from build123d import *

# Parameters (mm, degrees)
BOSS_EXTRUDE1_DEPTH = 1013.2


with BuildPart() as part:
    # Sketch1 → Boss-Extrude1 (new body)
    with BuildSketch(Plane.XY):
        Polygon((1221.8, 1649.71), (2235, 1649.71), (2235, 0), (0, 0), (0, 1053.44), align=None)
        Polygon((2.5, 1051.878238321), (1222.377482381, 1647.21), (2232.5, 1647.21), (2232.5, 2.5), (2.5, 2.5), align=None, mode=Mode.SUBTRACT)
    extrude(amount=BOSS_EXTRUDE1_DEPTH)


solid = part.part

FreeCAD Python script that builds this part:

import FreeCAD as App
import Part
import Sketcher

V = App.Vector
Q = App.Units.Quantity

doc = App.newDocument("Part")
body = doc.addObject("PartDesign::Body", "Body")

# Sketch on XY plane
sketch1 = body.newObject("Sketcher::SketchObject", "Sketch")
sketch1.AttachmentSupport = (doc.getObject("XY_Plane"), [""])
sketch1.MapMode = "FlatFace"
sketch1.addGeometry([
    Part.LineSegment(V(2235, 1650, 0), V(1222, 1650, 0)),  # 0
    Part.LineSegment(V(1222, 1650, 0), V(0, 1053, 0)),  # 1
    Part.LineSegment(V(0, 1053, 0), V(0, 0, 0)),  # 2
    Part.LineSegment(V(0, 0, 0), V(2235, 0, 0)),  # 3
    Part.LineSegment(V(2235, 0, 0), V(2235, 1650, 0)),  # 4
    Part.LineSegment(V(2, 1052, 0), V(1222, 1647, 0)),  # 5
    Part.LineSegment(V(1222, 1647, 0), V(2232, 1647, 0)),  # 6
    Part.LineSegment(V(2232, 1647, 0), V(2232, 2, 0)),  # 7
    Part.LineSegment(V(2232, 2, 0), V(2, 2, 0)),  # 8
    Part.LineSegment(V(2, 2, 0), V(2, 1052, 0)),  # 9
], False)
sketch1.addConstraint([
    Sketcher.Constraint("Coincident", 0, 2, 1, 1),
    Sketcher.Constraint("Coincident", 1, 2, 2, 1),
    Sketcher.Constraint("Coincident", 2, 2, 3, 1),
    Sketcher.Constraint("Coincident", 3, 2, 4, 1),
    Sketcher.Constraint("Coincident", 4, 2, 0, 1),
    Sketcher.Constraint("Coincident", 5, 2, 6, 1),
    Sketcher.Constraint("Coincident", 6, 2, 7, 1),
    Sketcher.Constraint("Coincident", 7, 2, 8, 1),
    Sketcher.Constraint("Coincident", 8, 2, 9, 1),
    Sketcher.Constraint("Coincident", 9, 2, 5, 1),
    Sketcher.Constraint("Horizontal", 0),
    Sketcher.Constraint("Vertical", 2),
    Sketcher.Constraint("Horizontal", 3),
    Sketcher.Constraint("Vertical", 4),
    Sketcher.Constraint("Horizontal", 6),
    Sketcher.Constraint("Vertical", 7),
    Sketcher.Constraint("Horizontal", 8),
    Sketcher.Constraint("Vertical", 9),
    Sketcher.Constraint("Coincident", 2, 2, -1, 1),
    Sketcher.Constraint("Parallel", 1, 5),
    Sketcher.Constraint("DistanceX", 3, 1, 3, 2, Q("2235 mm")),
    Sketcher.Constraint("DistanceX", 8, 2, 8, 1, Q("2230 mm")),
    Sketcher.Constraint("DistanceX", 0, 2, 0, 1, Q("1013.2 mm")),
    Sketcher.Constraint("DistanceY", 2, 2, 2, 1, Q("1053.44 mm")),
    Sketcher.Constraint("DistanceY", 4, 1, 4, 2, Q("1649.71 mm")),
    Sketcher.Constraint("DistanceY", 7, 2, 7, 1, Q("1644.71 mm")),
    Sketcher.Constraint("DistanceX", -1, 1, 6, 2, Q("2232.5 mm")),
    Sketcher.Constraint("DistanceY", -1, 1, 7, 2, Q("2.5 mm")),
    Sketcher.Constraint("DistanceY", 9, 1, 9, 2, Q("1049.378238 mm")),
])
pad1 = body.newObject("PartDesign::Pad", "Pad")
pad1.Profile = sketch1
pad1.Length = 1013.2

doc.recompute()
